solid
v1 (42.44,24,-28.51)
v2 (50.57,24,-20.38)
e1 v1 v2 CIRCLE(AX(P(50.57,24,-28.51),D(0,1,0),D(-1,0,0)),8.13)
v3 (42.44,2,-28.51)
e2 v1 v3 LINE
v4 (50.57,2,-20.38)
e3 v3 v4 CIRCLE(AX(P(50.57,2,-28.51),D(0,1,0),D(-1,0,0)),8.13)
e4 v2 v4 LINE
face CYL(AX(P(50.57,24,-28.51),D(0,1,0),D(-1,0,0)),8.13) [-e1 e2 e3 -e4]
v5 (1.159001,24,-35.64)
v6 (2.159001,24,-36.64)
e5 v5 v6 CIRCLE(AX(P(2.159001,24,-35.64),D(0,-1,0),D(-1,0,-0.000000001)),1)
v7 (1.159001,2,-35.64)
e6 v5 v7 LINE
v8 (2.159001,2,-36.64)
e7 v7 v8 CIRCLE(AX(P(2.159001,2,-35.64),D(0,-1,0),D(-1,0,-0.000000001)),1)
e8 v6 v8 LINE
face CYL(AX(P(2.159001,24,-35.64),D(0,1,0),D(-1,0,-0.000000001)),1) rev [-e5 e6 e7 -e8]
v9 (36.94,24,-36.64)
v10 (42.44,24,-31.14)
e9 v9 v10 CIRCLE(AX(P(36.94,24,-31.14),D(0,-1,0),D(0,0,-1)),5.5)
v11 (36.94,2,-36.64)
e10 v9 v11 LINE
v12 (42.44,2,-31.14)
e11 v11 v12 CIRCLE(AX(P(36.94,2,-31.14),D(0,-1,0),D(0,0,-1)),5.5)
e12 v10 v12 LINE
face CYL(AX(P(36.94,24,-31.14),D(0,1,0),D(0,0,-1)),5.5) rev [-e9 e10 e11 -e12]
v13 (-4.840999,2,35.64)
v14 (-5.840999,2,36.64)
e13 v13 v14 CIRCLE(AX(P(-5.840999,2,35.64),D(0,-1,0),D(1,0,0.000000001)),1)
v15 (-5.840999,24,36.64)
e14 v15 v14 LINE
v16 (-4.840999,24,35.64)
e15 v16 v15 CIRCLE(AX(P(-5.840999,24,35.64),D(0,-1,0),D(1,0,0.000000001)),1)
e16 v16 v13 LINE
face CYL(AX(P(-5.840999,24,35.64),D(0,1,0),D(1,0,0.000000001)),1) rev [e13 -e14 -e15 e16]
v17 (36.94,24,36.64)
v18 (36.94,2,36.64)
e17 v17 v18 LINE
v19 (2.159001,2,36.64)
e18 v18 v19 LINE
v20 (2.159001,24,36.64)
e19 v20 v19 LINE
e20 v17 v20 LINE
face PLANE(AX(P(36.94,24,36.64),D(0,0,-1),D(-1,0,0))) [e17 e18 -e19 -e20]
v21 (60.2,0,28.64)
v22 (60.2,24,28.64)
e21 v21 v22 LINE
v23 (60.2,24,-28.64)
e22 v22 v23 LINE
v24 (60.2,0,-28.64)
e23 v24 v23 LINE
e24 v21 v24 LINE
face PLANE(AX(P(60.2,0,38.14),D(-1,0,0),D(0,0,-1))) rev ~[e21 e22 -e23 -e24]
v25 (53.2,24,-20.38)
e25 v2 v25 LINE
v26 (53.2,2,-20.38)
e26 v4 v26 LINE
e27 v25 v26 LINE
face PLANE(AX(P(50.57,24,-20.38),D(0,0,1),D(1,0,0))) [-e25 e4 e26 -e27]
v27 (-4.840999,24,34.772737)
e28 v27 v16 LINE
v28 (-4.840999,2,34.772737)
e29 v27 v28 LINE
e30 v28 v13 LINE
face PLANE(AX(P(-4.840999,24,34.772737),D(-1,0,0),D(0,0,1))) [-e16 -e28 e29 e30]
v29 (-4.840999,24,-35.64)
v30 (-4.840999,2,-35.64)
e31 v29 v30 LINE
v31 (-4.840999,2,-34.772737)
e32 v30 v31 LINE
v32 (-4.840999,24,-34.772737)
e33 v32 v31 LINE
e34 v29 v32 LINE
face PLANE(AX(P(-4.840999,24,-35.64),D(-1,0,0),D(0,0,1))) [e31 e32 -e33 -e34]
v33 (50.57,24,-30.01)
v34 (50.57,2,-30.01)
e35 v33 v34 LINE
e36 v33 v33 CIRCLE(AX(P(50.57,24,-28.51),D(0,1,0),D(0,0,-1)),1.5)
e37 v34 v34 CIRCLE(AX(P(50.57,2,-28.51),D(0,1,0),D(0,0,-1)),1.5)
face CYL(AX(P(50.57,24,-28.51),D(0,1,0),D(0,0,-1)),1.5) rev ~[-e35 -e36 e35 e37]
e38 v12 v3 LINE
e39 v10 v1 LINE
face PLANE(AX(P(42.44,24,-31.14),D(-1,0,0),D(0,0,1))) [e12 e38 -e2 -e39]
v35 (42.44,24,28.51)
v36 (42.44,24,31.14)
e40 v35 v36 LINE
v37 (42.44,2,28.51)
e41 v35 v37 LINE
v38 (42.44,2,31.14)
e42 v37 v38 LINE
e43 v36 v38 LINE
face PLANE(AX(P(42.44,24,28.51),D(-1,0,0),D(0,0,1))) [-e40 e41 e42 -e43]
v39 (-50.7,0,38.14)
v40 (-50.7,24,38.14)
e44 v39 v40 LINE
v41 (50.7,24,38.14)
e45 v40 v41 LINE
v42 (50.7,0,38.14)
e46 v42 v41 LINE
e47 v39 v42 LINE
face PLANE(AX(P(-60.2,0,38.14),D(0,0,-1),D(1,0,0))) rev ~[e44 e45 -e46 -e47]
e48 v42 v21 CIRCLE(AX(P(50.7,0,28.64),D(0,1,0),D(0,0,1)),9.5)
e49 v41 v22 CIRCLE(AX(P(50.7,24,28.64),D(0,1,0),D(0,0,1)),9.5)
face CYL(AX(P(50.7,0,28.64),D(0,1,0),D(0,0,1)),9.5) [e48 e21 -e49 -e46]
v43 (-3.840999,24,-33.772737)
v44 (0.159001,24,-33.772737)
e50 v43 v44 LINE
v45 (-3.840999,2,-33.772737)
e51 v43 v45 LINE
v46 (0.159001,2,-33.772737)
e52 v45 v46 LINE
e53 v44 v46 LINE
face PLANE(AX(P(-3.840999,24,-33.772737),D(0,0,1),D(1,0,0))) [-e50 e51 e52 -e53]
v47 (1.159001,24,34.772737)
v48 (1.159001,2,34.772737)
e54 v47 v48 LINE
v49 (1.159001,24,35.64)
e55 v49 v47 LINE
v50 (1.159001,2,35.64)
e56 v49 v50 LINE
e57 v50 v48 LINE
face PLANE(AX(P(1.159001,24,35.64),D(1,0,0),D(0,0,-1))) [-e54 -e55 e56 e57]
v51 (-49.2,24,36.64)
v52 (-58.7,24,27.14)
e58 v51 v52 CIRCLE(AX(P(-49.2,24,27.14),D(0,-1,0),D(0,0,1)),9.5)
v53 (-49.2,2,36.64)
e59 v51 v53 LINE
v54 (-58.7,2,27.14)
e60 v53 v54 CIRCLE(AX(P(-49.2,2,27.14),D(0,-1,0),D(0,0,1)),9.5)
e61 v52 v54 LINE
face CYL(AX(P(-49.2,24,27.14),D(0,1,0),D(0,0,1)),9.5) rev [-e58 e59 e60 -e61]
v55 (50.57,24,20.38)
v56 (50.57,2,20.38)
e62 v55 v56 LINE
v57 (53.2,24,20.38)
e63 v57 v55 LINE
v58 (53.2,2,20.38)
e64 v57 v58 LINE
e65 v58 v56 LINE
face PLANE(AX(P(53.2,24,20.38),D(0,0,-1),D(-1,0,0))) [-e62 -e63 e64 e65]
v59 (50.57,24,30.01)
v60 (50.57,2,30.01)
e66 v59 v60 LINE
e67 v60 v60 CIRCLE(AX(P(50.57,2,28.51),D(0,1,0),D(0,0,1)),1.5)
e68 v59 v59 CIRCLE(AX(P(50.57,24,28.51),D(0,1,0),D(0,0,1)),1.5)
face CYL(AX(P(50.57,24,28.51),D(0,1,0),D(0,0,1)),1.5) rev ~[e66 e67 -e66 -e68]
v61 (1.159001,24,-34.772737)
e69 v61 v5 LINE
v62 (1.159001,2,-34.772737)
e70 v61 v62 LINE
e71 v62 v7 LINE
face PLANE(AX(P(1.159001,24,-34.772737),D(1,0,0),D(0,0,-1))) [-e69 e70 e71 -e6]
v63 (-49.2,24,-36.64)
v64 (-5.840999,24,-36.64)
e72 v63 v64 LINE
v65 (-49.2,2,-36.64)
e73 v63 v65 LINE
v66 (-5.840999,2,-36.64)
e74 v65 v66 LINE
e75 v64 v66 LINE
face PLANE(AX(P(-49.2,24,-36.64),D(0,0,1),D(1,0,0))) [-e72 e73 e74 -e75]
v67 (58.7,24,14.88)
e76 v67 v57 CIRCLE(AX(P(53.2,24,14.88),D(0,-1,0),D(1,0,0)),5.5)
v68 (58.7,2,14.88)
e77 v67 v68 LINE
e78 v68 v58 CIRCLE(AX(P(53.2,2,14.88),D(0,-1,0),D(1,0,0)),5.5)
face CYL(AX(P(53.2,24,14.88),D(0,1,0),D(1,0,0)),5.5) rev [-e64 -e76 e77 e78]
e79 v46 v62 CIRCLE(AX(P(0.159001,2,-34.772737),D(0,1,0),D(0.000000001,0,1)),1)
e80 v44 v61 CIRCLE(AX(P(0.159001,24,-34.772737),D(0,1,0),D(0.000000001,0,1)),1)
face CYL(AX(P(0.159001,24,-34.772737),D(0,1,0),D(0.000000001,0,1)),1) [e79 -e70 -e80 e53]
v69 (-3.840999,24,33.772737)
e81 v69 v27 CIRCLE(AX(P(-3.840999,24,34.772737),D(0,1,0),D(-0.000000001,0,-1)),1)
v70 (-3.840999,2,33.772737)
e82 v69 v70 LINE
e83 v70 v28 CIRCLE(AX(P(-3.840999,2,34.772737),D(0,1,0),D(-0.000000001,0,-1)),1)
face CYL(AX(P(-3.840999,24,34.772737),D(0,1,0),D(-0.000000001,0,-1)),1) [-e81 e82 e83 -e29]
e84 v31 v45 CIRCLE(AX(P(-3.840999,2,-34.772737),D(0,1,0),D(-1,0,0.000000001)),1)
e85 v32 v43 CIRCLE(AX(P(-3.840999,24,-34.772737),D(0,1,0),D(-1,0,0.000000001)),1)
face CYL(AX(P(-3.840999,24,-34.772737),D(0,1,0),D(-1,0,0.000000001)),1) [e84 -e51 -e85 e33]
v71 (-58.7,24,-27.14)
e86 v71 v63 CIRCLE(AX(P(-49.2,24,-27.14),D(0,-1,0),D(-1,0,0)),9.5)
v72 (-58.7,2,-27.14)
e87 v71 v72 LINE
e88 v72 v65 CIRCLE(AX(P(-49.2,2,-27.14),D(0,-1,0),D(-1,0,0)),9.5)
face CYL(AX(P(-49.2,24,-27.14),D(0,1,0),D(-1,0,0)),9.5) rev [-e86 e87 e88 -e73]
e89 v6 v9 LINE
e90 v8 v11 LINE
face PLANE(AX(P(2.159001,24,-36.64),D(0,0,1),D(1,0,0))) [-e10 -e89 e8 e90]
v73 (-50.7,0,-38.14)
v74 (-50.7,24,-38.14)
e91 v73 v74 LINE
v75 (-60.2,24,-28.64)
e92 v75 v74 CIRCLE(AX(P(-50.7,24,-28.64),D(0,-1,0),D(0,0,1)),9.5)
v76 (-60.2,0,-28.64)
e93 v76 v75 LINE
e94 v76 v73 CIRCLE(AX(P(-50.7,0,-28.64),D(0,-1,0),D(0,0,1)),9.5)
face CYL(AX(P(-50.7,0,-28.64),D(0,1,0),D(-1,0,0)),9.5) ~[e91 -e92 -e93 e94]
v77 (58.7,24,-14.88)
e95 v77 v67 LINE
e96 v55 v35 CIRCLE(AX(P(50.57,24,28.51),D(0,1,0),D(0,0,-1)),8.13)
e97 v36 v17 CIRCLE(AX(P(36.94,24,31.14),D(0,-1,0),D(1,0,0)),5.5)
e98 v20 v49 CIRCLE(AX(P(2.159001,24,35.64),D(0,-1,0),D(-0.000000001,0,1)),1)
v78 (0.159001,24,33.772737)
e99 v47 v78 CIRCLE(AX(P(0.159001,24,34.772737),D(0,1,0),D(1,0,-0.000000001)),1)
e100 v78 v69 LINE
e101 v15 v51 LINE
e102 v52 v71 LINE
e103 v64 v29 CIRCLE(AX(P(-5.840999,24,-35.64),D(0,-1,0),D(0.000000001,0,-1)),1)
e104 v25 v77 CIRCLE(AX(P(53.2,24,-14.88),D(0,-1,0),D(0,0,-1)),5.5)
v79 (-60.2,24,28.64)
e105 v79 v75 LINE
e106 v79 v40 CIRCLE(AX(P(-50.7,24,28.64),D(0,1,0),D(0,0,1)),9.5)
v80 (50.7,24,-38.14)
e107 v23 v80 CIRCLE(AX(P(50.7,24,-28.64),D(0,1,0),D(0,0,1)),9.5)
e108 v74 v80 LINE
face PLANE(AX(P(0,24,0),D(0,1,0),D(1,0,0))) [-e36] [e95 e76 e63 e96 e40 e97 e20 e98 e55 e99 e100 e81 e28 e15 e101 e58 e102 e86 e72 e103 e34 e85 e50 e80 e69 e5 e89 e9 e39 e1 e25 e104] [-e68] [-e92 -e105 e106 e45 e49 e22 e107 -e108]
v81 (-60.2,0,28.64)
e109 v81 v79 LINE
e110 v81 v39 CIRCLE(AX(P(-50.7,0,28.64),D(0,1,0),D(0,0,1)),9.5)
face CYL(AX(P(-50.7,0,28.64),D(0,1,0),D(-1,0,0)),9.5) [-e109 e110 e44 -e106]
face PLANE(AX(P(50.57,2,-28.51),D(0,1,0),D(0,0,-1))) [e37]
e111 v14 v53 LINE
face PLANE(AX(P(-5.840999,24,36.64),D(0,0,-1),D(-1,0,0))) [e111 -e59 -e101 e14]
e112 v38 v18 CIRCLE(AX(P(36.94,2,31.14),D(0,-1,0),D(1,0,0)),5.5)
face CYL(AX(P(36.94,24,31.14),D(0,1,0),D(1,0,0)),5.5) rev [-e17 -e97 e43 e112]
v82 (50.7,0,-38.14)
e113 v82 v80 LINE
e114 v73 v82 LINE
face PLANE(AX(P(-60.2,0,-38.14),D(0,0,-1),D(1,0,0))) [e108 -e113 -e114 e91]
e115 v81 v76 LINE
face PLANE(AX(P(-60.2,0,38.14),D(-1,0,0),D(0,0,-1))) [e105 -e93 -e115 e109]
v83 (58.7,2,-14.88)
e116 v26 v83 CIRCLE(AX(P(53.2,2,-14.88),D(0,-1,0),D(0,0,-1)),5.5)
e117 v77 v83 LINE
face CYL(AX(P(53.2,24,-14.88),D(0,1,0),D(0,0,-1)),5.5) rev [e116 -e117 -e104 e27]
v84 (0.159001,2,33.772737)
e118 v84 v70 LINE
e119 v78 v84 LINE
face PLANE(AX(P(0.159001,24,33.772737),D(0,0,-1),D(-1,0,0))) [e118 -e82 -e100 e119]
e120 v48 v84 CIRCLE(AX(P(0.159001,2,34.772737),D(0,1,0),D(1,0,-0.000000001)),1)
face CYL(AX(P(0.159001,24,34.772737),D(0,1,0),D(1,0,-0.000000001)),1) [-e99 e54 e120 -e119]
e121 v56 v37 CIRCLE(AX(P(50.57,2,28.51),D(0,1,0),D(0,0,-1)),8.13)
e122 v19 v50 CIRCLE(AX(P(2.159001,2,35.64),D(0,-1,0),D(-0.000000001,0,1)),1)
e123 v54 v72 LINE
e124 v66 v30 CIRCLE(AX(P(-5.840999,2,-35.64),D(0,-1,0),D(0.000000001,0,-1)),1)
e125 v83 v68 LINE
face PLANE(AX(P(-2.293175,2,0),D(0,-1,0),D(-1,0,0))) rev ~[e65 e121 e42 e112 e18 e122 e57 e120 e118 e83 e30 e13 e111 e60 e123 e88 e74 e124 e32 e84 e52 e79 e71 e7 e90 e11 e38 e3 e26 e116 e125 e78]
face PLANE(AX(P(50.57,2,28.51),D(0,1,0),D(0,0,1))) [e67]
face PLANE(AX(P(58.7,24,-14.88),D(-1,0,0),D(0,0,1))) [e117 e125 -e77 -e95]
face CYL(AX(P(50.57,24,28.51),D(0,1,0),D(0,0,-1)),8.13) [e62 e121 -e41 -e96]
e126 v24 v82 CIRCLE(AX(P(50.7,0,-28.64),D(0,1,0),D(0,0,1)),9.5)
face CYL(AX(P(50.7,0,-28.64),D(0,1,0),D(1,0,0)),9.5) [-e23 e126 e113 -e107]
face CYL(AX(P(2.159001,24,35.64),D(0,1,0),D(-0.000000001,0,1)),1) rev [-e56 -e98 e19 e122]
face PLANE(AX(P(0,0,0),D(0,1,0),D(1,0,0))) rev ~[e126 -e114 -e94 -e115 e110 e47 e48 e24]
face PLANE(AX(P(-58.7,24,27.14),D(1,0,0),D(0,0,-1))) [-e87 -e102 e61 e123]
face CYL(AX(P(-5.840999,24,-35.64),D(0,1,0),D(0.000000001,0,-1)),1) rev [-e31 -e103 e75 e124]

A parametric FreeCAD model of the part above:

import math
import FreeCAD as App
import Part
import Sketcher

V = App.Vector


def edges_at(feature, points):
    """Names of the edges that pass closest to the given points."""
    edges = feature.Shape.Edges
    near = lambda p: min(range(len(edges)), key=lambda i: edges[i].distToShape(Part.Vertex(*p))[0])
    return sorted({f"Edge{near(p) + 1}" for p in points})


def add_polygon(sketch, points):
    """Adds a closed chain of lines whose ends are joined by coincident constraints."""
    first, n = sketch.GeometryCount, len(points)
    for a, b in zip(points, points[1:] + points[:1]):
        sketch.addGeometry(Part.LineSegment(App.Vector(*a, 0), App.Vector(*b, 0)), False)
    for i in range(n):
        sketch.addConstraint(Sketcher.Constraint("Coincident", first + i, 2, first + (i + 1) % n, 1))

doc = App.newDocument("Part")
body = doc.addObject("PartDesign::Body", "Body")

sketch1 = doc.addObject("Sketcher::SketchObject", "Sketch")
body.addObject(sketch1)
sketch1.AttachmentSupport = (doc.XZ_Plane, [""])
sketch1.MapMode = "FlatFace"
add_polygon(sketch1, [(-60, -38), (-60, 38), (60, 38), (60, -38)])
sketch1.addConstraint(Sketcher.Constraint("Vertical", 0))
sketch1.addConstraint(Sketcher.Constraint("Horizontal", 1))
sketch1.addConstraint(Sketcher.Constraint("Vertical", 2))
sketch1.addConstraint(Sketcher.Constraint("Horizontal", 3))
sketch1.addConstraint(Sketcher.Constraint("Symmetric", 0, 2, 2, 2, -1, 1))
sketch1.addConstraint(Sketcher.Constraint("DistanceX", 1, 1, 1, 2, 120.4))
sketch1.addConstraint(Sketcher.Constraint("DistanceY", 0, 1, 0, 2, 76.28))
pad1 = doc.addObject("PartDesign::Pad", "Pad")
body.addObject(pad1)
pad1.Profile = sketch1
pad1.Length = 24
pad1.Reversed = True
doc.recompute()

fillet = doc.addObject("PartDesign::Fillet", "Fillet")
body.addObject(fillet)
fillet.Base = (pad1, edges_at(pad1, [
    (60.2, 12, 38.14),
    (-60.2, 12, 38.14),
    (-60.2, 12, -38.14),
    (60.2, 12, -38.14),
]))
fillet.Radius = 9.5

sketch2 = doc.addObject("Sketcher::SketchObject", "Sketch001")
body.addObject(sketch2)
sketch2.AttachmentSupport = (doc.XZ_Plane, [""])
sketch2.MapMode = "FlatFace"
sketch2.AttachmentOffset = App.Placement(V(0, 0, -24), App.Rotation())
sketch2.addGeometry(Part.Circle(V(50.6, 28.5, 0), V(0, 0, 1), 1.5), False)
sketch2.addGeometry(Part.Circle(V(50.6, -28.5, 0), V(0, 0, 1), 1.5), False)
sketch2.addGeometry(Part.LineSegment(V(-5.8, -36.6, 0), V(-49.2, -36.6, 0)), False)
sketch2.addGeometry(Part.ArcOfCircle(Part.Circle(V(-49.2, -27.1, 0), V(0, 0, 1), 9.5), math.radians(-180), math.radians(-90)), False)
sketch2.addGeometry(Part.LineSegment(V(-58.7, -27.1, 0), V(-58.7, 27.1, 0)), False)
sketch2.addGeometry(Part.ArcOfCircle(Part.Circle(V(-49.2, 27.1, 0), V(0, 0, 1), 9.5), math.radians(90), math.radians(180)), False)
sketch2.addGeometry(Part.LineSegment(V(-49.2, 36.6, 0), V(-5.8, 36.6, 0)), False)
sketch2.addGeometry(Part.ArcOfCircle(Part.Circle(V(-5.8, 35.6, 0), V(0, 0, 1), 1), math.radians(0), math.radians(90)), False)
sketch2.addGeometry(Part.LineSegment(V(-4.8, 35.6, 0), V(-4.8, 34.8, 0)), False)
sketch2.addGeometry(Part.ArcOfCircle(Part.Circle(V(-3.8, 34.8, 0), V(0, 0, 1), 1), math.radians(-180), math.radians(-90)), False)
sketch2.addGeometry(Part.LineSegment(V(-3.8, 33.8, 0), V(0.2, 33.8, 0)), False)
sketch2.addGeometry(Part.ArcOfCircle(Part.Circle(V(0.2, 34.8, 0), V(0, 0, 1), 1), math.radians(-90), math.radians(0)), False)
sketch2.addGeometry(Part.LineSegment(V(1.2, 34.8, 0), V(1.2, 35.6, 0)), False)
sketch2.addGeometry(Part.ArcOfCircle(Part.Circle(V(2.2, 35.6, 0), V(0, 0, 1), 1), math.radians(90), math.radians(180)), False)
sketch2.addGeometry(Part.LineSegment(V(2.2, 36.6, 0), V(36.9, 36.6, 0)), False)
sketch2.addGeometry(Part.ArcOfCircle(Part.Circle(V(36.9, 31.1, 0), V(0, 0, 1), 5.5), math.radians(0), math.radians(90)), False)
sketch2.addGeometry(Part.LineSegment(V(42.4, 31.1, 0), V(42.4, 28.5, 0)), False)
sketch2.addGeometry(Part.ArcOfCircle(Part.Circle(V(50.6, 28.5, 0), V(0, 0, 1), 8.1), math.radians(180), math.radians(270)), False)
sketch2.addGeometry(Part.LineSegment(V(50.6, 20.4, 0), V(53.2, 20.4, 0)), False)
sketch2.addGeometry(Part.ArcOfCircle(Part.Circle(V(53.2, 14.9, 0), V(0, 0, 1), 5.5), math.radians(0), math.radians(90)), False)
sketch2.addGeometry(Part.LineSegment(V(58.7, 14.9, 0), V(58.7, -14.9, 0)), False)
sketch2.addGeometry(Part.ArcOfCircle(Part.Circle(V(53.2, -14.9, 0), V(0, 0, 1), 5.5), math.radians(-90), math.radians(0)), False)
sketch2.addGeometry(Part.LineSegment(V(53.2, -20.4, 0), V(50.6, -20.4, 0)), False)
sketch2.addGeometry(Part.ArcOfCircle(Part.Circle(V(50.6, -28.5, 0), V(0, 0, 1), 8.1), math.radians(90), math.radians(180)), False)
sketch2.addGeometry(Part.LineSegment(V(42.4, -28.5, 0), V(42.4, -31.1, 0)), False)
sketch2.addGeometry(Part.ArcOfCircle(Part.Circle(V(36.9, -31.1, 0), V(0, 0, 1), 5.5), math.radians(-90), math.radians(0)), False)
sketch2.addGeometry(Part.LineSegment(V(36.9, -36.6, 0), V(2.2, -36.6, 0)), False)
sketch2.addGeometry(Part.ArcOfCircle(Part.Circle(V(2.2, -35.6, 0), V(0, 0, 1), 1), math.radians(-180), math.radians(-90)), False)
sketch2.addGeometry(Part.LineSegment(V(1.2, -35.6, 0), V(1.2, -34.8, 0)), False)
sketch2.addGeometry(Part.ArcOfCircle(Part.Circle(V(0.2, -34.8, 0), V(0, 0, 1), 1), math.radians(0), math.radians(90)), False)
sketch2.addGeometry(Part.LineSegment(V(0.2, -33.8, 0), V(-3.8, -33.8, 0)), False)
sketch2.addGeometry(Part.ArcOfCircle(Part.Circle(V(-3.8, -34.8, 0), V(0, 0, 1), 1), math.radians(90), math.radians(180)), False)
sketch2.addGeometry(Part.LineSegment(V(-4.8, -34.8, 0), V(-4.8, -35.6, 0)), False)
sketch2.addGeometry(Part.ArcOfCircle(Part.Circle(V(-5.8, -35.6, 0), V(0, 0, 1), 1), math.radians(-90), math.radians(0)), False)
sketch2.addConstraint(Sketcher.Constraint("Tangent", 2, 2, 3, 2))
sketch2.addConstraint(Sketcher.Constraint("Tangent", 3, 1, 4, 1))
sketch2.addConstraint(Sketcher.Constraint("Tangent", 4, 2, 5, 2))
sketch2.addConstraint(Sketcher.Constraint("Tangent", 5, 1, 6, 1))
sketch2.addConstraint(Sketcher.Constraint("Tangent", 6, 2, 7, 2))
sketch2.addConstraint(Sketcher.Constraint("Tangent", 7, 1, 8, 1))
sketch2.addConstraint(Sketcher.Constraint("Tangent", 8, 2, 9, 1))
sketch2.addConstraint(Sketcher.Constraint("Tangent", 9, 2, 10, 1))
sketch2.addConstraint(Sketcher.Constraint("Tangent", 10, 2, 11, 1))
sketch2.addConstraint(Sketcher.Constraint("Tangent", 11, 2, 12, 1))
sketch2.addConstraint(Sketcher.Constraint("Tangent", 12, 2, 13, 2))
sketch2.addConstraint(Sketcher.Constraint("Tangent", 13, 1, 14, 1))
sketch2.addConstraint(Sketcher.Constraint("Tangent", 14, 2, 15, 2))
sketch2.addConstraint(Sketcher.Constraint("Tangent", 15, 1, 16, 1))
sketch2.addConstraint(Sketcher.Constraint("Tangent", 16, 2, 17, 1))
sketch2.addConstraint(Sketcher.Constraint("Tangent", 17, 2, 18, 1))
sketch2.addConstraint(Sketcher.Constraint("Tangent", 18, 2, 19, 2))
sketch2.addConstraint(Sketcher.Constraint("Tangent", 19, 1, 20, 1))
sketch2.addConstraint(Sketcher.Constraint("Tangent", 20, 2, 21, 2))
sketch2.addConstraint(Sketcher.Constraint("Tangent", 21, 1, 22, 1))
sketch2.addConstraint(Sketcher.Constraint("Tangent", 22, 2, 23, 1))
sketch2.addConstraint(Sketcher.Constraint("Tangent", 23, 2, 24, 1))
sketch2.addConstraint(Sketcher.Constraint("Tangent", 24, 2, 25, 2))
sketch2.addConstraint(Sketcher.Constraint("Tangent", 25, 1, 26, 1))
sketch2.addConstraint(Sketcher.Constraint("Tangent", 26, 2, 27, 2))
sketch2.addConstraint(Sketcher.Constraint("Tangent", 27, 1, 28, 1))
sketch2.addConstraint(Sketcher.Constraint("Tangent", 28, 2, 29, 1))
sketch2.addConstraint(Sketcher.Constraint("Tangent", 29, 2, 30, 1))
sketch2.addConstraint(Sketcher.Constraint("Tangent", 30, 2, 31, 1))
sketch2.addConstraint(Sketcher.Constraint("Tangent", 31, 2, 32, 1))
sketch2.addConstraint(Sketcher.Constraint("Tangent", 32, 2, 33, 2))
sketch2.addConstraint(Sketcher.Constraint("Tangent", 33, 1, 2, 1))
sketch2.addConstraint(Sketcher.Constraint("Horizontal", 2))
sketch2.addConstraint(Sketcher.Constraint("Vertical", 4))
sketch2.addConstraint(Sketcher.Constraint("Horizontal", 6))
sketch2.addConstraint(Sketcher.Constraint("Vertical", 8))
sketch2.addConstraint(Sketcher.Constraint("Horizontal", 10))
sketch2.addConstraint(Sketcher.Constraint("Vertical", 12))
sketch2.addConstraint(Sketcher.Constraint("Horizontal", 14))
sketch2.addConstraint(Sketcher.Constraint("Vertical", 16))
sketch2.addConstraint(Sketcher.Constraint("Horizontal", 18))
sketch2.addConstraint(Sketcher.Constraint("Vertical", 20))
sketch2.addConstraint(Sketcher.Constraint("Horizontal", 22))
sketch2.addConstraint(Sketcher.Constraint("Vertical", 24))
sketch2.addConstraint(Sketcher.Constraint("Horizontal", 26))
sketch2.addConstraint(Sketcher.Constraint("Vertical", 28))
sketch2.addConstraint(Sketcher.Constraint("Horizontal", 30))
sketch2.addConstraint(Sketcher.Constraint("Vertical", 32))
sketch2.addConstraint(Sketcher.Constraint("Coincident", 17, 3, 0, 3))
sketch2.addConstraint(Sketcher.Constraint("Coincident", 23, 3, 1, 3))
sketch2.addConstraint(Sketcher.Constraint("Equal", 0, 1))
sketch2.addConstraint(Sketcher.Constraint("Equal", 3, 5))
sketch2.addConstraint(Sketcher.Constraint("Equal", 7, 9))
sketch2.addConstraint(Sketcher.Constraint("Equal", 9, 11))
sketch2.addConstraint(Sketcher.Constraint("Equal", 11, 13))
sketch2.addConstraint(Sketcher.Constraint("Equal", 15, 19))
sketch2.addConstraint(Sketcher.Constraint("Equal", 19, 21))
sketch2.addConstraint(Sketcher.Constraint("Equal", 17, 23))
sketch2.addConstraint(Sketcher.Constraint("Equal", 21, 25))
sketch2.addConstraint(Sketcher.Constraint("Equal", 13, 27))
sketch2.addConstraint(Sketcher.Constraint("Equal", 27, 29))
sketch2.addConstraint(Sketcher.Constraint("Equal", 29, 31))
sketch2.addConstraint(Sketcher.Constraint("Equal", 31, 33))
sketch2.addConstraint(Sketcher.Constraint("Symmetric", 0, 3, 1, 3, -1))
sketch2.addConstraint(Sketcher.Constraint("Symmetric", 13, 3, 27, 3, -1))
sketch2.addConstraint(Sketcher.Constraint("Symmetric", 9, 3, 31, 3, -1))
sketch2.addConstraint(Sketcher.Constraint("Horizontal", 7, 3, 13, 3))
sketch2.addConstraint(Sketcher.Constraint("Horizontal", 27, 3, 33, 3))
sketch2.addConstraint(Sketcher.Constraint("Equal", 22, 16))
sketch2.addConstraint(Sketcher.Constraint("Diameter", 0, 3.0))
sketch2.addConstraint(Sketcher.Constraint("Radius", 7, 1.0))
sketch2.addConstraint(Sketcher.Constraint("Radius", 3, 9.5))
sketch2.addConstraint(Sketcher.Constraint("Radius", 15, 5.5))
sketch2.addConstraint(Sketcher.Constraint("DistanceX", 10, 1, 10, 2, 4.0))
sketch2.addConstraint(Sketcher.Constraint("Radius", 17, 8.13))
sketch2.addConstraint(Sketcher.Constraint("DistanceX", 18, 1, 18, 2, 2.63))
sketch2.addConstraint(Sketcher.Constraint("DistanceY", 4, 1, 4, 2, 54.28))
sketch2.addConstraint(Sketcher.Constraint("DistanceX", 3, 3, -1, 1, 49.2))
sketch2.addConstraint(Sketcher.Constraint("DistanceX", -1, 1, 19, 3, 53.2))
sketch2.addConstraint(Sketcher.Constraint("DistanceX", 2, 2, 2, 1, 43.359001))
sketch2.addConstraint(Sketcher.Constraint("DistanceY", 8, 2, 8, 1, 0.867263))
pocket1 = doc.addObject("PartDesign::Pocket", "Pocket")
body.addObject(pocket1)
pocket1.Profile = sketch2
pocket1.Length = 22
pocket1.Reversed = True

doc.recompute()
